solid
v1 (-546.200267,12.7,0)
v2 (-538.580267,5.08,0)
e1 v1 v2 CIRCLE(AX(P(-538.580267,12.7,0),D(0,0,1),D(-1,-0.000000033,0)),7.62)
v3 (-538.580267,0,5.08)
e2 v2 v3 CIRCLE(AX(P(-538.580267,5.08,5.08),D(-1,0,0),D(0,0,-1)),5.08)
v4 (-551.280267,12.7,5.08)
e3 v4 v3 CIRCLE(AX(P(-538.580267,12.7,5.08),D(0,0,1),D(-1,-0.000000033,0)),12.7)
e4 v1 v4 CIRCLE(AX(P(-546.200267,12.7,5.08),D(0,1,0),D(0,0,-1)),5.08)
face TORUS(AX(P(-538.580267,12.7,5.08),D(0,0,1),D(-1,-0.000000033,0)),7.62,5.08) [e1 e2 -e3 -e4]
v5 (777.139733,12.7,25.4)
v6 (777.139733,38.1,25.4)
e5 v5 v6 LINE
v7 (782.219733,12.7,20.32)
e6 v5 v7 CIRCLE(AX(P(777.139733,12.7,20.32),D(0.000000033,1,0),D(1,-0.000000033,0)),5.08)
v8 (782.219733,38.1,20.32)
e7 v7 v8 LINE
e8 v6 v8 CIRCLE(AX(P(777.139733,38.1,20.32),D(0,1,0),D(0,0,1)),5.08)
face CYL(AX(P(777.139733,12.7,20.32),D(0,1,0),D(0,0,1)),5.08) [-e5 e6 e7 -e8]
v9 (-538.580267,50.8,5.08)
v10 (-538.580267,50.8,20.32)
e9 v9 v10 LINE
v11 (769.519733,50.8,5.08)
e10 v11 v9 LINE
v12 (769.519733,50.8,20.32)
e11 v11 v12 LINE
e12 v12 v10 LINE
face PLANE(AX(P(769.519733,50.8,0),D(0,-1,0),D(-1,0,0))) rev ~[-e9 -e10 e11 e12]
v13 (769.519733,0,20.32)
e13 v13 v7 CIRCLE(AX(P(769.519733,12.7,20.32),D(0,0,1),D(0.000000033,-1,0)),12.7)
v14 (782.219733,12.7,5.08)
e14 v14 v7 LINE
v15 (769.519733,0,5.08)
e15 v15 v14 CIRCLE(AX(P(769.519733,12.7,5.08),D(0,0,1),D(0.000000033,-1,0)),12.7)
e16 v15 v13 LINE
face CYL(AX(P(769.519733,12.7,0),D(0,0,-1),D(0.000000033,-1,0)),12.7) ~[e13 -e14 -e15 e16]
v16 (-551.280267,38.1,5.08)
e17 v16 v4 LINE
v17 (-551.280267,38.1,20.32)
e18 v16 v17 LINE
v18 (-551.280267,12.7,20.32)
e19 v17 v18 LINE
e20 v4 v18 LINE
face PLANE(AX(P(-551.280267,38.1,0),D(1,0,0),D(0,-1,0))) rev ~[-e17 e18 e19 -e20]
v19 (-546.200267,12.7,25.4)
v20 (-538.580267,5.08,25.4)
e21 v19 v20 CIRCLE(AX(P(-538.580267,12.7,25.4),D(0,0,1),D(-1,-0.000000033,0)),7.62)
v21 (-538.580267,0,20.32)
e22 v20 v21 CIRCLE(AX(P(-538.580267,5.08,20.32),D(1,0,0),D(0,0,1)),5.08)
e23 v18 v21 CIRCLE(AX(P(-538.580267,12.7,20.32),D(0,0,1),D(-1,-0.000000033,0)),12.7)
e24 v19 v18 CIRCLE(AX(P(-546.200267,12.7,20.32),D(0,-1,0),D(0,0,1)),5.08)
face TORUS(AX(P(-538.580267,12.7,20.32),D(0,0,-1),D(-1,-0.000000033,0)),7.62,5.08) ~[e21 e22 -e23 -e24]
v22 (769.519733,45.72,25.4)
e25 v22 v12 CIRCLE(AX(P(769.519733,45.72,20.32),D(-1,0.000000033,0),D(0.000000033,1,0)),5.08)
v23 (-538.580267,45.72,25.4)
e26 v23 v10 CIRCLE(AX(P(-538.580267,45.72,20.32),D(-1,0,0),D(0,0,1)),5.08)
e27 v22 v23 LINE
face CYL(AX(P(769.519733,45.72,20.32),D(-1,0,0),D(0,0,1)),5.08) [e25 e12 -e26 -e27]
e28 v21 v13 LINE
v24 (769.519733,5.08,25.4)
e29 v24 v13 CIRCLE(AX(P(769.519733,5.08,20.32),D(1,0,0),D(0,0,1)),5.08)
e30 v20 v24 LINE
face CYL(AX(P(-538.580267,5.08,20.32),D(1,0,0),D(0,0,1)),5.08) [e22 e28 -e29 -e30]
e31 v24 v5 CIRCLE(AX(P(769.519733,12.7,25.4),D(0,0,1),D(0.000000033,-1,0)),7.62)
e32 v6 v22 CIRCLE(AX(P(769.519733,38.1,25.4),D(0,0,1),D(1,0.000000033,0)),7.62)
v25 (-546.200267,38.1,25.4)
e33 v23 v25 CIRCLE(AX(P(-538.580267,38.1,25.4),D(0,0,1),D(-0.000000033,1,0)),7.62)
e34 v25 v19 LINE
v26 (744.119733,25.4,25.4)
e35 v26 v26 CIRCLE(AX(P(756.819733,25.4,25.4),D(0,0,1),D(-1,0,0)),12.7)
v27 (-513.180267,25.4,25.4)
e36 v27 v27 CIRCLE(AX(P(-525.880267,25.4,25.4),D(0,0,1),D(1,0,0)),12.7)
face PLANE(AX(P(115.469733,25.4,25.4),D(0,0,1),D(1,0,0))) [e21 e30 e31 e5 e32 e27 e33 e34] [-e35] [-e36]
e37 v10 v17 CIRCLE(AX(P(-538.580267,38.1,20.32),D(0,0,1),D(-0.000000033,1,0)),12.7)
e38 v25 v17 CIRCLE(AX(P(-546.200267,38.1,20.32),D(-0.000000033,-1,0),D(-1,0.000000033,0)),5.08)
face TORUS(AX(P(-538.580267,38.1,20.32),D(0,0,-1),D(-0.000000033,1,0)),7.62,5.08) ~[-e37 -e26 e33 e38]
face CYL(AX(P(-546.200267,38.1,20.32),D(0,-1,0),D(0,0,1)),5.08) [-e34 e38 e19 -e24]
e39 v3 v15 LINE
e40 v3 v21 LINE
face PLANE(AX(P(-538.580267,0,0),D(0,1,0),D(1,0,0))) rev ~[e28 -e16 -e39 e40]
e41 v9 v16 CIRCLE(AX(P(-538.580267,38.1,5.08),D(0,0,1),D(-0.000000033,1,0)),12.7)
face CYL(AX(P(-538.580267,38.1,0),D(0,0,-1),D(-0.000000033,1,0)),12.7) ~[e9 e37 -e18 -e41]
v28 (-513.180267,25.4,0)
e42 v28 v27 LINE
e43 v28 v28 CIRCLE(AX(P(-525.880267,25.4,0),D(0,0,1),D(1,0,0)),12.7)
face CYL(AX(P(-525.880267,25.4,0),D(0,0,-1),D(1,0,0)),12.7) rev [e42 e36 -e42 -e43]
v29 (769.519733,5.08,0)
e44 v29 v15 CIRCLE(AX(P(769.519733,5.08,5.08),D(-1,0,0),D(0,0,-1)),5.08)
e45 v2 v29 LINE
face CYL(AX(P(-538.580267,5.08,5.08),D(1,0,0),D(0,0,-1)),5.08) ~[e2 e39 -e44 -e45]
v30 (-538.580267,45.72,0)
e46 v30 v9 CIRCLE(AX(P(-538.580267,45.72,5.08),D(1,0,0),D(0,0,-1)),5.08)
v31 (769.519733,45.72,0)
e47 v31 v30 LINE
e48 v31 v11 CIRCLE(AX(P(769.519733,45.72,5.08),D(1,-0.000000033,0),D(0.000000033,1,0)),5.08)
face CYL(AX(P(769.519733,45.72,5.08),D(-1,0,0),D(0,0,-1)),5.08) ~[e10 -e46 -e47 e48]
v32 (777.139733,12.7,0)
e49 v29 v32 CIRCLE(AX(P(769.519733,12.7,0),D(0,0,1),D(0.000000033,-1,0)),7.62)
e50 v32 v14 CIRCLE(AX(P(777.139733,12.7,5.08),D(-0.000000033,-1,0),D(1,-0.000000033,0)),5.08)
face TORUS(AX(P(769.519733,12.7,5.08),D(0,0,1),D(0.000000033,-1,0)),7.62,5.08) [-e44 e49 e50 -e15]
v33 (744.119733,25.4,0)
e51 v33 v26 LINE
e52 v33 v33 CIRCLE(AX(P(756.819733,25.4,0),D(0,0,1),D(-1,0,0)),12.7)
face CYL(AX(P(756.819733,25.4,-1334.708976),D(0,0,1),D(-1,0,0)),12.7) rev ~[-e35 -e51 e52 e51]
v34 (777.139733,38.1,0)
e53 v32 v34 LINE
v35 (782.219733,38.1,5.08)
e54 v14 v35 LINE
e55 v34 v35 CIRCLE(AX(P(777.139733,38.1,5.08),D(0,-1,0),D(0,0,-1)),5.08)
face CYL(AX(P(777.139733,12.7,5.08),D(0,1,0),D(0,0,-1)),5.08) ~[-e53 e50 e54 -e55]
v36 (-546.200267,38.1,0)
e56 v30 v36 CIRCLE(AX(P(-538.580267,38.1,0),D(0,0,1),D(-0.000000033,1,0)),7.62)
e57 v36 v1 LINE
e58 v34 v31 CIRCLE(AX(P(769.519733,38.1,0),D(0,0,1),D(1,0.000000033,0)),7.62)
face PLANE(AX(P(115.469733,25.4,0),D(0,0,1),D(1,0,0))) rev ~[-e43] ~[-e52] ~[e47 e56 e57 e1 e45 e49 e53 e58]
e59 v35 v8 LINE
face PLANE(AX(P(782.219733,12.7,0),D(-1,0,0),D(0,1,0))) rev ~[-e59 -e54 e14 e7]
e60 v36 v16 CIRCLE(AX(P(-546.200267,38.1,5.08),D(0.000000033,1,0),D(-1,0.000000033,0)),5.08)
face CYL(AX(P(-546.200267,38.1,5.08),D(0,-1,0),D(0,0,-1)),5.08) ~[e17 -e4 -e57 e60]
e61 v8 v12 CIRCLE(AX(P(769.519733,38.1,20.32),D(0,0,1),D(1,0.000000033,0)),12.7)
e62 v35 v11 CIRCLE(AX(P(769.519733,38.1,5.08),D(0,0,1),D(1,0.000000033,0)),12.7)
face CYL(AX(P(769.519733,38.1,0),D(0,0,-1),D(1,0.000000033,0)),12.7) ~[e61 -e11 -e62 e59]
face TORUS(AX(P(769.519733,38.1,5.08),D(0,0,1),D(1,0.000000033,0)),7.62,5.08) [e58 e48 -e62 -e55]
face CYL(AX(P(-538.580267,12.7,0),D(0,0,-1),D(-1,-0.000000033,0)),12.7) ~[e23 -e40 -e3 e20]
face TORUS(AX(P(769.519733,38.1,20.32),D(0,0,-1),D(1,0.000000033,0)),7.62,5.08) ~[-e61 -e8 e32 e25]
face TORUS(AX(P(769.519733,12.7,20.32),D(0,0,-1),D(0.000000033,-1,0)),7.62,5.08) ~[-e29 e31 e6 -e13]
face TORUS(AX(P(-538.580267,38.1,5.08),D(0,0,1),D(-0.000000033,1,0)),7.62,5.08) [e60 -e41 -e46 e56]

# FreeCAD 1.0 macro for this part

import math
import FreeCAD as App
import Part
import Sketcher

V = App.Vector
Q = App.Units.Quantity


def edges_at(feature, points):
    """Names of the edges that pass closest to the given points."""
    edges = feature.Shape.Edges
    near = lambda p: min(range(len(edges)), key=lambda i: edges[i].distToShape(Part.Vertex(*p))[0])
    return sorted({f"Edge{near(p) + 1}" for p in points})

doc = App.newDocument("Part")
params = doc.addObject("Spreadsheet::Sheet", "Params")
for row, (alias, value) in enumerate([
    ("sketch1_diameter", "1 in"),
    ("sketch1_height", "1 in"),
    ("sketch1_width", "51.5 in"),
    ("pad1_length", "1 in"),
    ("sketch2_diameter", "1 in"),
    ("hole_diameter", "1 in"),
    ("fillet_radius", "0.2 in"),
], start=1):
    params.set(f"A{row}", alias)
    params.set(f"B{row}", "=" + value)
    params.setAlias(f"B{row}", alias)

body = doc.addObject("PartDesign::Body", "Body")

# Sketch on XY plane
sketch1 = doc.addObject("Sketcher::SketchObject", "Sketch")
body.addObject(sketch1)
sketch1.AttachmentSupport = (doc.XY_Plane, [""])
sketch1.MapMode = "FlatFace"
sketch1.addGeometry([
    Part.LineSegment(V(770, 51, 0), V(-539, 51, 0)),  # 0
    Part.ArcOfCircle(Part.Circle(V(-539, 38, 0), V(0, 0, 1), 13), math.radians(90), math.radians(180)),  # 1
    Part.LineSegment(V(-551, 38, 0), V(-551, 13, 0)),  # 2
    Part.ArcOfCircle(Part.Circle(V(-539, 13, 0), V(0, 0, 1), 13), math.radians(-180), math.radians(-90)),  # 3
    Part.LineSegment(V(-539, 0, 0), V(770, 0, 0)),  # 4
    Part.ArcOfCircle(Part.Circle(V(770, 13, 0), V(0, 0, 1), 13), math.radians(-90), math.radians(0)),  # 5
    Part.LineSegment(V(782, 13, 0), V(782, 38, 0)),  # 6
    Part.ArcOfCircle(Part.Circle(V(770, 38, 0), V(0, 0, 1), 13), math.radians(0), math.radians(90)),  # 7
    Part.Circle(V(-526, 25, 0), V(0, 0, 1), 13),  # 8
], False)
sketch1.addConstraint([
    Sketcher.Constraint("Tangent", 0, 2, 1, 1),
    Sketcher.Constraint("Tangent", 1, 2, 2, 1),
    Sketcher.Constraint("Tangent", 2, 2, 3, 1),
    Sketcher.Constraint("Tangent", 3, 2, 4, 1),
    Sketcher.Constraint("Tangent", 4, 2, 5, 1),
    Sketcher.Constraint("Tangent", 5, 2, 6, 1),
    Sketcher.Constraint("Tangent", 6, 2, 7, 1),
    Sketcher.Constraint("Tangent", 7, 2, 0, 1),
    Sketcher.Constraint("Horizontal", 0),
    Sketcher.Constraint("Vertical", 2),
    Sketcher.Constraint("Horizontal", 4),
    Sketcher.Constraint("Vertical", 6),
    Sketcher.Constraint("Equal", 1, 3),
    Sketcher.Constraint("Equal", 3, 5),
    Sketcher.Constraint("Equal", 5, 7),
    Sketcher.Constraint("Equal", 7, 8),
    Sketcher.Constraint("PointOnObject", 3, 2, -1),
    Sketcher.Constraint("Diameter", 8, Q("1 in")),
    Sketcher.Constraint("DistanceY", 2, 2, 2, 1, Q("1 in")),
    Sketcher.Constraint("DistanceX", 0, 2, 0, 1, Q("51.5 in")),
    Sketcher.Constraint("DistanceY", -1, 1, 8, 3, Q("1 in")),
    Sketcher.Constraint("DistanceX", 8, 3, 5, 3, Q("51 in")),
    Sketcher.Constraint("DistanceX", 1, 3, -1, 1, 538.580267),
])
sketch1.setExpression("Constraints[17]", "Params.sketch1_diameter")
sketch1.setExpression("Constraints[18]", "Params.sketch1_height")
sketch1.setExpression("Constraints[19]", "Params.sketch1_width")
pad1 = doc.addObject("PartDesign::Pad", "Pad")
body.addObject(pad1)
pad1.Profile = sketch1
pad1.setExpression("Length", "Params.pad1_length")

# Sketch on XY plane
sketch2 = doc.addObject("Sketcher::SketchObject", "Sketch001")
body.addObject(sketch2)
sketch2.AttachmentSupport = (doc.XY_Plane, [""])
sketch2.MapMode = "FlatFace"
sketch2.addGeometry(Part.Circle(V(757, 25, 0), V(0, 0, 1), 13), False)
sketch2.addConstraint([
    Sketcher.Constraint("Diameter", 0, Q("1 in")),
    Sketcher.Constraint("DistanceY", -1, 1, 0, 3, Q("1 in")),
    Sketcher.Constraint("DistanceX", -1, 1, 0, 3, 756.819733),
])
sketch2.setExpression("Constraints[0]", "Params.sketch2_diameter")
doc.recompute()
hole = doc.addObject("PartDesign::Hole", "Hole")
body.addObject(hole)
hole.Profile = sketch2
hole.ThreadType = "None"
hole.setExpression("Diameter", "Params.hole_diameter")
hole.DepthType = "ThroughAll"
hole.Reversed = True
doc.recompute()

fillet = doc.addObject("PartDesign::Fillet", "Fillet")
body.addObject(fillet)
fillet.Base = (hole, edges_at(hole, [
    (115.47, 0, 0),
    (-551.28, 25.4, 0),
    (115.47, 50.8, 0),
    (782.22, 25.4, 0),
    (115.47, 0, 25.4),
    (782.22, 25.4, 25.4),
    (115.47, 50.8, 25.4),
    (-551.28, 25.4, 25.4),
]))
fillet.setExpression("Radius", "Params.fillet_radius")

doc.recompute()
